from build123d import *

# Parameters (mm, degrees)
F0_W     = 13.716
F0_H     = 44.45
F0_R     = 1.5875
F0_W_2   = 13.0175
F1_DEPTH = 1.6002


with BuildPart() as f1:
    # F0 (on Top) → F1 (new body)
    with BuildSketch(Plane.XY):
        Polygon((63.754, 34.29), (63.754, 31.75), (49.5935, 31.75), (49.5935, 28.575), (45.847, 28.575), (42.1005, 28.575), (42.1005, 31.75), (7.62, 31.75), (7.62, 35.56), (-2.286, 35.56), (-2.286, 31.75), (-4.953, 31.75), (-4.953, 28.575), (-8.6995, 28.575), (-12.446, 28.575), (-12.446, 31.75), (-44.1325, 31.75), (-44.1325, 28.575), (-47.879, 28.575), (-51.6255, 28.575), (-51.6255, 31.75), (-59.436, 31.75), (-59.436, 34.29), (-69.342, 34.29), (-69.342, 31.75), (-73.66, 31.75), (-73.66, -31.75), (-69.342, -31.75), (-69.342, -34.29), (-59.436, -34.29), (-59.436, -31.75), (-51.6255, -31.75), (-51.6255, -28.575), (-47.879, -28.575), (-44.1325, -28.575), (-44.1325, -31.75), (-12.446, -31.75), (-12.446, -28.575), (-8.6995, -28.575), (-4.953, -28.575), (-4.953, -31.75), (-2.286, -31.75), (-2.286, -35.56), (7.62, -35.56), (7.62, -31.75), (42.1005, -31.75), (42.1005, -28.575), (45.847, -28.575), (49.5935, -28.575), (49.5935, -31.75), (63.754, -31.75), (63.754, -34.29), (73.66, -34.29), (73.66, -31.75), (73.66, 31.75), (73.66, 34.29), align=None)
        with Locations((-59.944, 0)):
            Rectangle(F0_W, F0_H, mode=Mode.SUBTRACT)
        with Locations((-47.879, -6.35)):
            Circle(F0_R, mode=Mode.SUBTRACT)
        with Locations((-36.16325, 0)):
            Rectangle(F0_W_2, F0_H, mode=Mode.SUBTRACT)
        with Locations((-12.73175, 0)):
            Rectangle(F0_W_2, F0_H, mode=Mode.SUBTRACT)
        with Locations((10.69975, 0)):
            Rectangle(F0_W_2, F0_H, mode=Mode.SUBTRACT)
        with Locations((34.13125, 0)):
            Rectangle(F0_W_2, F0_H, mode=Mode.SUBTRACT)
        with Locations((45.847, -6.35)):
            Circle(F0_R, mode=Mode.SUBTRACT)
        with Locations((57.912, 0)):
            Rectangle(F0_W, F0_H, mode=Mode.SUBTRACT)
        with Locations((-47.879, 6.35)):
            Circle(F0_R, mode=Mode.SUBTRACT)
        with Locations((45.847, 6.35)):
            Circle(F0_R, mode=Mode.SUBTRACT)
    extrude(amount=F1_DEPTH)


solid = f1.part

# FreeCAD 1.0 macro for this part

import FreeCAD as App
import Part
import Sketcher

V = App.Vector
Q = App.Units.Quantity

doc = App.newDocument("Part")
body = doc.addObject("PartDesign::Body", "Body")

sketch1 = doc.addObject("Sketcher::SketchObject", "Sketch")
body.addObject(sketch1)
sketch1.AttachmentSupport = (doc.XY_Plane, [""])
sketch1.MapMode = "FlatFace"
sketch1.addGeometry([
    Part.LineSegment(V(63.754, 34.29, 0), V(63.754, 31.75, 0)),
    Part.LineSegment(V(63.754, 31.75, 0), V(49.5935, 31.75, 0)),
    Part.LineSegment(V(49.5935, 31.75, 0), V(49.5935, 28.575, 0)),
    Part.LineSegment(V(49.5935, 28.575, 0), V(42.1005, 28.575, 0)),
    Part.LineSegment(V(42.1005, 28.575, 0), V(42.1005, 31.75, 0)),
    Part.LineSegment(V(42.1005, 31.75, 0), V(7.62, 31.75, 0)),
    Part.LineSegment(V(7.62, 31.75, 0), V(7.62, 35.56, 0)),
    Part.LineSegment(V(7.62, 35.56, 0), V(-2.286, 35.56, 0)),
    Part.LineSegment(V(-2.286, 35.56, 0), V(-2.286, 31.75, 0)),
    Part.LineSegment(V(-2.286, 31.75, 0), V(-4.953, 31.75, 0)),
    Part.LineSegment(V(-4.953, 31.75, 0), V(-4.953, 28.575, 0)),
    Part.LineSegment(V(-4.953, 28.575, 0), V(-12.446, 28.575, 0)),
    Part.LineSegment(V(-12.446, 28.575, 0), V(-12.446, 31.75, 0)),
    Part.LineSegment(V(-12.446, 31.75, 0), V(-44.1325, 31.75, 0)),
    Part.LineSegment(V(-44.1325, 31.75, 0), V(-44.1325, 28.575, 0)),
    Part.LineSegment(V(-44.1325, 28.575, 0), V(-51.6255, 28.575, 0)),
    Part.LineSegment(V(-51.6255, 28.575, 0), V(-51.6255, 31.75, 0)),
    Part.LineSegment(V(-51.6255, 31.75, 0), V(-59.436, 31.75, 0)),
    Part.LineSegment(V(-59.436, 31.75, 0), V(-59.436, 34.29, 0)),
    Part.LineSegment(V(-59.436, 34.29, 0), V(-69.342, 34.29, 0)),
    Part.LineSegment(V(-69.342, 34.29, 0), V(-69.342, 31.75, 0)),
    Part.LineSegment(V(-69.342, 31.75, 0), V(-73.66, 31.75, 0)),
    Part.LineSegment(V(-73.66, 31.75, 0), V(-73.66, -31.75, 0)),
    Part.LineSegment(V(-73.66, -31.75, 0), V(-69.342, -31.75, 0)),
    Part.LineSegment(V(-69.342, -31.75, 0), V(-69.342, -34.29, 0)),
    Part.LineSegment(V(-69.342, -34.29, 0), V(-59.436, -34.29, 0)),
    Part.LineSegment(V(-59.436, -34.29, 0), V(-59.436, -31.75, 0)),
    Part.LineSegment(V(-59.436, -31.75, 0), V(-51.6255, -31.75, 0)),
    Part.LineSegment(V(-51.6255, -31.75, 0), V(-51.6255, -28.575, 0)),
    Part.LineSegment(V(-51.6255, -28.575, 0), V(-44.1325, -28.575, 0)),
    Part.LineSegment(V(-44.1325, -28.575, 0), V(-44.1325, -31.75, 0)),
    Part.LineSegment(V(-44.1325, -31.75, 0), V(-12.446, -31.75, 0)),
    Part.LineSegment(V(-12.446, -31.75, 0), V(-12.446, -28.575, 0)),
    Part.LineSegment(V(-12.446, -28.575, 0), V(-4.953, -28.575, 0)),
    Part.LineSegment(V(-4.953, -28.575, 0), V(-4.953, -31.75, 0)),
    Part.LineSegment(V(-4.953, -31.75, 0), V(-2.286, -31.75, 0)),
    Part.LineSegment(V(-2.286, -31.75, 0), V(-2.286, -35.56, 0)),
    Part.LineSegment(V(-2.286, -35.56, 0), V(7.62, -35.56, 0)),
    Part.LineSegment(V(7.62, -35.56, 0), V(7.62, -31.75, 0)),
    Part.LineSegment(V(7.62, -31.75, 0), V(42.1005, -31.75, 0)),
    Part.LineSegment(V(42.1005, -31.75, 0), V(42.1005, -28.575, 0)),
    Part.LineSegment(V(42.1005, -28.575, 0), V(49.5935, -28.575, 0)),
    Part.LineSegment(V(49.5935, -28.575, 0), V(49.5935, -31.75, 0)),
    Part.LineSegment(V(49.5935, -31.75, 0), V(63.754, -31.75, 0)),
    Part.LineSegment(V(63.754, -31.75, 0), V(63.754, -34.29, 0)),
    Part.LineSegment(V(63.754, -34.29, 0), V(73.66, -34.29, 0)),
    Part.LineSegment(V(73.66, -34.29, 0), V(73.66, 34.29, 0)),
    Part.LineSegment(V(73.66, 34.29, 0), V(63.754, 34.29, 0)),
    Part.Circle(V(-47.879, -6.35, 0), V(0, 0, 1), 1.5875),
    Part.Circle(V(45.847, -6.35, 0), V(0, 0, 1), 1.5875),
    Part.LineSegment(V(-53.086, -22.225, 0), V(-66.802, -22.225, 0)),
    Part.LineSegment(V(-66.802, -22.225, 0), V(-66.802, 22.225, 0)),
    Part.LineSegment(V(-66.802, 22.225, 0), V(-53.086, 22.225, 0)),
    Part.LineSegment(V(-53.086, 22.225, 0), V(-53.086, -22.225, 0)),
    Part.LineSegment(V(-29.6545, -22.225, 0), V(-42.672, -22.225, 0)),
    Part.LineSegment(V(-42.672, -22.225, 0), V(-42.672, 22.225, 0)),
    Part.LineSegment(V(-42.672, 22.225, 0), V(-29.6545, 22.225, 0)),
    Part.LineSegment(V(-29.6545, 22.225, 0), V(-29.6545, -22.225, 0)),
    Part.Circle(V(-47.879, 6.35, 0), V(0, 0, 1), 1.5875),
    Part.LineSegment(V(-6.223, -22.225, 0), V(-19.2405, -22.225, 0)),
    Part.LineSegment(V(-19.2405, -22.225, 0), V(-19.2405, 22.225, 0)),
    Part.LineSegment(V(-19.2405, 22.225, 0), V(-6.223, 22.225, 0)),
    Part.LineSegment(V(-6.223, 22.225, 0), V(-6.223, -22.225, 0)),
    Part.LineSegment(V(17.2085, -22.225, 0), V(4.191, -22.225, 0)),
    Part.LineSegment(V(4.191, -22.225, 0), V(4.191, 22.225, 0)),
    Part.LineSegment(V(4.191, 22.225, 0), V(17.2085, 22.225, 0)),
    Part.LineSegment(V(17.2085, 22.225, 0), V(17.2085, -22.225, 0)),
    Part.LineSegment(V(40.64, -22.225, 0), V(27.6225, -22.225, 0)),
    Part.LineSegment(V(27.6225, -22.225, 0), V(27.6225, 22.225, 0)),
    Part.LineSegment(V(27.6225, 22.225, 0), V(40.64, 22.225, 0)),
    Part.LineSegment(V(40.64, 22.225, 0), V(40.64, -22.225, 0)),
    Part.LineSegment(V(64.77, -22.225, 0), V(51.054, -22.225, 0)),
    Part.LineSegment(V(51.054, -22.225, 0), V(51.054, 22.225, 0)),
    Part.LineSegment(V(51.054, 22.225, 0), V(64.77, 22.225, 0)),
    Part.LineSegment(V(64.77, 22.225, 0), V(64.77, -22.225, 0)),
    Part.Circle(V(45.847, 6.35, 0), V(0, 0, 1), 1.5875),
], False)
sketch1.addConstraint([
    Sketcher.Constraint("Coincident", 0, 2, 1, 1),
    Sketcher.Constraint("Coincident", 1, 2, 2, 1),
    Sketcher.Constraint("Coincident", 2, 2, 3, 1),
    Sketcher.Constraint("Coincident", 3, 2, 4, 1),
    Sketcher.Constraint("Coincident", 4, 2, 5, 1),
    Sketcher.Constraint("Coincident", 5, 2, 6, 1),
    Sketcher.Constraint("Coincident", 6, 2, 7, 1),
    Sketcher.Constraint("Coincident", 7, 2, 8, 1),
    Sketcher.Constraint("Coincident", 8, 2, 9, 1),
    Sketcher.Constraint("Coincident", 9, 2, 10, 1),
    Sketcher.Constraint("Coincident", 10, 2, 11, 1),
    Sketcher.Constraint("Coincident", 11, 2, 12, 1),
    Sketcher.Constraint("Coincident", 12, 2, 13, 1),
    Sketcher.Constraint("Coincident", 13, 2, 14, 1),
    Sketcher.Constraint("Coincident", 14, 2, 15, 1),
    Sketcher.Constraint("Coincident", 15, 2, 16, 1),
    Sketcher.Constraint("Coincident", 16, 2, 17, 1),
    Sketcher.Constraint("Coincident", 17, 2, 18, 1),
    Sketcher.Constraint("Coincident", 18, 2, 19, 1),
    Sketcher.Constraint("Coincident", 19, 2, 20, 1),
    Sketcher.Constraint("Coincident", 20, 2, 21, 1),
    Sketcher.Constraint("Coincident", 21, 2, 22, 1),
    Sketcher.Constraint("Coincident", 22, 2, 23, 1),
    Sketcher.Constraint("Coincident", 23, 2, 24, 1),
    Sketcher.Constraint("Coincident", 24, 2, 25, 1),
    Sketcher.Constraint("Coincident", 25, 2, 26, 1),
    Sketcher.Constraint("Coincident", 26, 2, 27, 1),
    Sketcher.Constraint("Coincident", 27, 2, 28, 1),
    Sketcher.Constraint("Coincident", 28, 2, 29, 1),
    Sketcher.Constraint("Coincident", 29, 2, 30, 1),
    Sketcher.Constraint("Coincident", 30, 2, 31, 1),
    Sketcher.Constraint("Coincident", 31, 2, 32, 1),
    Sketcher.Constraint("Coincident", 32, 2, 33, 1),
    Sketcher.Constraint("Coincident", 33, 2, 34, 1),
    Sketcher.Constraint("Coincident", 34, 2, 35, 1),
    Sketcher.Constraint("Coincident", 35, 2, 36, 1),
    Sketcher.Constraint("Coincident", 36, 2, 37, 1),
    Sketcher.Constraint("Coincident", 37, 2, 38, 1),
    Sketcher.Constraint("Coincident", 38, 2, 39, 1),
    Sketcher.Constraint("Coincident", 39, 2, 40, 1),
    Sketcher.Constraint("Coincident", 40, 2, 41, 1),
    Sketcher.Constraint("Coincident", 41, 2, 42, 1),
    Sketcher.Constraint("Coincident", 42, 2, 43, 1),
    Sketcher.Constraint("Coincident", 43, 2, 44, 1),
    Sketcher.Constraint("Coincident", 44, 2, 45, 1),
    Sketcher.Constraint("Coincident", 45, 2, 46, 1),
    Sketcher.Constraint("Coincident", 46, 2, 47, 1),
    Sketcher.Constraint("Coincident", 47, 2, 0, 1),
    Sketcher.Constraint("Coincident", 50, 2, 51, 1),
    Sketcher.Constraint("Coincident", 51, 2, 52, 1),
    Sketcher.Constraint("Coincident", 52, 2, 53, 1),
    Sketcher.Constraint("Coincident", 53, 2, 50, 1),
    Sketcher.Constraint("Coincident", 54, 2, 55, 1),
    Sketcher.Constraint("Coincident", 55, 2, 56, 1),
    Sketcher.Constraint("Coincident", 56, 2, 57, 1),
    Sketcher.Constraint("Coincident", 57, 2, 54, 1),
    Sketcher.Constraint("Coincident", 59, 2, 60, 1),
    Sketcher.Constraint("Coincident", 60, 2, 61, 1),
    Sketcher.Constraint("Coincident", 61, 2, 62, 1),
    Sketcher.Constraint("Coincident", 62, 2, 59, 1),
    Sketcher.Constraint("Coincident", 63, 2, 64, 1),
    Sketcher.Constraint("Coincident", 64, 2, 65, 1),
    Sketcher.Constraint("Coincident", 65, 2, 66, 1),
    Sketcher.Constraint("Coincident", 66, 2, 63, 1),
    Sketcher.Constraint("Coincident", 67, 2, 68, 1),
    Sketcher.Constraint("Coincident", 68, 2, 69, 1),
    Sketcher.Constraint("Coincident", 69, 2, 70, 1),
    Sketcher.Constraint("Coincident", 70, 2, 67, 1),
    Sketcher.Constraint("Coincident", 71, 2, 72, 1),
    Sketcher.Constraint("Coincident", 72, 2, 73, 1),
    Sketcher.Constraint("Coincident", 73, 2, 74, 1),
    Sketcher.Constraint("Coincident", 74, 2, 71, 1),
    Sketcher.Constraint("Vertical", 0),
    Sketcher.Constraint("Horizontal", 1),
    Sketcher.Constraint("Vertical", 2),
    Sketcher.Constraint("Horizontal", 3),
    Sketcher.Constraint("Vertical", 4),
    Sketcher.Constraint("Horizontal", 5),
    Sketcher.Constraint("Vertical", 6),
    Sketcher.Constraint("Horizontal", 7),
    Sketcher.Constraint("Vertical", 8),
    Sketcher.Constraint("Horizontal", 9),
    Sketcher.Constraint("Vertical", 10),
    Sketcher.Constraint("Horizontal", 11),
    Sketcher.Constraint("Vertical", 12),
    Sketcher.Constraint("Horizontal", 13),
    Sketcher.Constraint("Vertical", 14),
    Sketcher.Constraint("Horizontal", 15),
    Sketcher.Constraint("Vertical", 16),
    Sketcher.Constraint("Horizontal", 17),
    Sketcher.Constraint("Vertical", 18),
    Sketcher.Constraint("Horizontal", 19),
    Sketcher.Constraint("Vertical", 20),
    Sketcher.Constraint("Horizontal", 21),
    Sketcher.Constraint("Vertical", 22),
    Sketcher.Constraint("Horizontal", 23),
    Sketcher.Constraint("Vertical", 24),
    Sketcher.Constraint("Horizontal", 25),
    Sketcher.Constraint("Vertical", 26),
    Sketcher.Constraint("Horizontal", 27),
    Sketcher.Constraint("Vertical", 28),
    Sketcher.Constraint("Horizontal", 29),
    Sketcher.Constraint("Vertical", 30),
    Sketcher.Constraint("Horizontal", 31),
    Sketcher.Constraint("Vertical", 32),
    Sketcher.Constraint("Horizontal", 33),
    Sketcher.Constraint("Vertical", 34),
    Sketcher.Constraint("Horizontal", 35),
    Sketcher.Constraint("Vertical", 36),
    Sketcher.Constraint("Horizontal", 37),
    Sketcher.Constraint("Vertical", 38),
    Sketcher.Constraint("Horizontal", 39),
    Sketcher.Constraint("Vertical", 40),
    Sketcher.Constraint("Horizontal", 41),
    Sketcher.Constraint("Vertical", 42),
    Sketcher.Constraint("Horizontal", 43),
    Sketcher.Constraint("Vertical", 44),
    Sketcher.Constraint("Horizontal", 45),
    Sketcher.Constraint("Vertical", 46),
    Sketcher.Constraint("Horizontal", 47),
    Sketcher.Constraint("Horizontal", 50),
    Sketcher.Constraint("Vertical", 51),
    Sketcher.Constraint("Horizontal", 52),
    Sketcher.Constraint("Vertical", 53),
    Sketcher.Constraint("Horizontal", 54),
    Sketcher.Constraint("Vertical", 55),
    Sketcher.Constraint("Horizontal", 56),
    Sketcher.Constraint("Vertical", 57),
    Sketcher.Constraint("Horizontal", 59),
    Sketcher.Constraint("Vertical", 60),
    Sketcher.Constraint("Horizontal", 61),
    Sketcher.Constraint("Vertical", 62),
    Sketcher.Constraint("Horizontal", 63),
    Sketcher.Constraint("Vertical", 64),
    Sketcher.Constraint("Horizontal", 65),
    Sketcher.Constraint("Vertical", 66),
    Sketcher.Constraint("Horizontal", 67),
    Sketcher.Constraint("Vertical", 68),
    Sketcher.Constraint("Horizontal", 69),
    Sketcher.Constraint("Vertical", 70),
    Sketcher.Constraint("Horizontal", 71),
    Sketcher.Constraint("Vertical", 72),
    Sketcher.Constraint("Horizontal", 73),
    Sketcher.Constraint("Vertical", 74),
    Sketcher.Constraint("Equal", 48, 49),
    Sketcher.Constraint("Equal", 49, 58),
    Sketcher.Constraint("Equal", 58, 75),
    Sketcher.Constraint("Symmetric", 48, 3, 58, 3, -1),
    Sketcher.Constraint("Symmetric", 49, 3, 75, 3, -1),
    Sketcher.Constraint("Symmetric", 20, 2, 23, 2, -1),
    Sketcher.Constraint("Symmetric", 18, 2, 25, 2, -1),
    Sketcher.Constraint("Symmetric", 16, 2, 27, 2, -1),
    Sketcher.Constraint("Symmetric", 14, 2, 29, 2, -1),
    Sketcher.Constraint("Symmetric", 12, 2, 31, 2, -1),
    Sketcher.Constraint("Symmetric", 10, 2, 33, 2, -1),
    Sketcher.Constraint("Symmetric", 8, 2, 35, 2, -1),
    Sketcher.Constraint("Symmetric", 6, 2, 37, 2, -1),
    Sketcher.Constraint("Symmetric", 4, 2, 39, 2, -1),
    Sketcher.Constraint("Symmetric", 2, 2, 41, 2, -1),
    Sketcher.Constraint("Symmetric", 0, 2, 43, 2, -1),
    Sketcher.Constraint("Horizontal", 48, 3, 49, 3),
    Sketcher.Constraint("Horizontal", 1, 2, 4, 2),
    Sketcher.Constraint("Horizontal", 5, 2, 8, 2),
    Sketcher.Constraint("Horizontal", 3, 2, 10, 2),
    Sketcher.Constraint("Horizontal", 9, 2, 12, 2),
    Sketcher.Constraint("Horizontal", 11, 2, 14, 2),
    Sketcher.Constraint("Horizontal", 13, 2, 16, 2),
    Sketcher.Constraint("Horizontal", 17, 2, 20, 2),
    Sketcher.Constraint("Horizontal", 25, 2, 44, 2),
    Sketcher.Constraint("Horizontal", 19, 2, 46, 2),
    Sketcher.Constraint("Horizontal", 53, 2, 54, 2),
    Sketcher.Constraint("Horizontal", 52, 2, 55, 2),
    Sketcher.Constraint("Horizontal", 57, 2, 59, 2),
    Sketcher.Constraint("Horizontal", 56, 2, 60, 2),
    Sketcher.Constraint("Horizontal", 62, 2, 63, 2),
    Sketcher.Constraint("Horizontal", 61, 2, 64, 2),
    Sketcher.Constraint("Horizontal", 66, 2, 67, 2),
    Sketcher.Constraint("Horizontal", 65, 2, 68, 2),
    Sketcher.Constraint("Horizontal", 70, 2, 71, 2),
    Sketcher.Constraint("Horizontal", 69, 2, 72, 2),
    Sketcher.Constraint("Equal", 3, 11),
    Sketcher.Constraint("Equal", 11, 15),
    Sketcher.Constraint("Equal", 7, 19),
    Sketcher.Constraint("Equal", 37, 45),
    Sketcher.Constraint("Equal", 56, 59),
    Sketcher.Constraint("Equal", 61, 63),
    Sketcher.Constraint("Equal", 65, 67),
    Sketcher.Constraint("Equal", 52, 71),
    Sketcher.Constraint("Diameter", 48, Q("0.125 in")),
    Sketcher.Constraint("DistanceY", 0, 2, 0, 1, Q("0.1 in")),
    Sketcher.Constraint("DistanceY", 22, 2, 22, 1, Q("2.5 in")),
    Sketcher.Constraint("DistanceX", 7, 2, 7, 1, Q("0.39 in")),
    Sketcher.Constraint("DistanceX", 21, 2, 21, 1, Q("0.17 in")),
    Sketcher.Constraint("DistanceX", 50, 2, 50, 1, Q("0.54 in")),
    Sketcher.Constraint("DistanceY", 6, 1, 6, 2, Q("0.15 in")),
    Sketcher.Constraint("DistanceY", 51, 1, 51, 2, Q("1.75 in")),
    Sketcher.Constraint("DistanceX", -1, 1, 5, 2, Q("0.3 in")),
    Sketcher.Constraint("DistanceX", 21, 2, -1, 1, Q("2.9 in")),
    Sketcher.Constraint("DistanceX", -1, 1, 45, 2, Q("2.9 in")),
    Sketcher.Constraint("DistanceX", -1, 1, 69, 2, Q("1.6 in")),
    Sketcher.Constraint("DistanceX", 3, 2, 3, 1, Q("0.295 in")),
    Sketcher.Constraint("DistanceX", 9, 2, 9, 1, Q("0.105 in")),
    Sketcher.Constraint("DistanceY", 2, 2, 2, 1, Q("0.125 in")),
    Sketcher.Constraint("DistanceY", 48, 3, -1, 1, Q("0.25 in")),
    Sketcher.Constraint("DistanceX", 50, 2, -1, 1, Q("2.63 in")),
    Sketcher.Constraint("DistanceX", 54, 2, -1, 1, Q("1.68 in")),
    Sketcher.Constraint("DistanceX", -1, 1, 71, 2, Q("2.01 in")),
    Sketcher.Constraint("DistanceX", 1, 2, 1, 1, Q("0.5575 in")),
    Sketcher.Constraint("DistanceX", 13, 2, 13, 1, Q("1.2475 in")),
    Sketcher.Constraint("DistanceX", 54, 2, 54, 1, Q("0.5125 in")),
    Sketcher.Constraint("DistanceX", 48, 3, -1, 1, Q("1.885 in")),
    Sketcher.Constraint("DistanceX", -1, 1, 49, 3, Q("1.805 in")),
    Sketcher.Constraint("DistanceY", 50, 2, -1, 1, Q("0.875 in")),
    Sketcher.Constraint("DistanceX", 61, 2, -1, 1, Q("0.245 in")),
    Sketcher.Constraint("DistanceX", -1, 1, 63, 2, Q("0.165 in")),
])
pad1 = doc.addObject("PartDesign::Pad", "Pad")
body.addObject(pad1)
pad1.Profile = sketch1
pad1.Length = Q("0.063 in")

doc.recompute()
